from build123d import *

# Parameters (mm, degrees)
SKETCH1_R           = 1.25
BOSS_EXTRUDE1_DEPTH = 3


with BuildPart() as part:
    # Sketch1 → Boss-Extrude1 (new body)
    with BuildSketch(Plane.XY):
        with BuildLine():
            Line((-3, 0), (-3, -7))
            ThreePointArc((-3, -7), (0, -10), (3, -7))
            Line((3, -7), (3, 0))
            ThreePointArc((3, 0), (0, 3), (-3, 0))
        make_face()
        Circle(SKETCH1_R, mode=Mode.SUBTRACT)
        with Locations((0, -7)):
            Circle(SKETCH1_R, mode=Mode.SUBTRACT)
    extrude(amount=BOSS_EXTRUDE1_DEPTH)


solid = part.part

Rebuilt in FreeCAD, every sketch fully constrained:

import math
import FreeCAD as App
import Part
import Sketcher

doc = App.newDocument("Part")
body = doc.addObject("PartDesign::Body", "Body")

# Sketch on XY plane
sketch1 = doc.addObject("Sketcher::SketchObject", "Sketch")
body.addObject(sketch1)
sketch1.AttachmentSupport = (doc.XY_Plane, [""])
sketch1.MapMode = "FlatFace"
sketch1.addGeometry(Part.LineSegment(App.Vector(-3, 0, 0), App.Vector(-3, -7, 0)), False)
sketch1.addGeometry(Part.ArcOfCircle(Part.Circle(App.Vector(0, -7, 0), App.Vector(0, 0, 1), 3), math.radians(180), math.radians(360)), False)
sketch1.addGeometry(Part.LineSegment(App.Vector(3, -7, 0), App.Vector(3, 0, 0)), False)
sketch1.addGeometry(Part.ArcOfCircle(Part.Circle(App.Vector(0, 0, 0), App.Vector(0, 0, 1), 3), math.radians(0), math.radians(180)), False)
sketch1.addGeometry(Part.Circle(App.Vector(0, -7, 0), App.Vector(0, 0, 1), 1.2), False)
sketch1.addGeometry(Part.Circle(App.Vector(0, 0, 0), App.Vector(0, 0, 1), 1.2), False)
sketch1.addConstraint(Sketcher.Constraint("Tangent", 0, 2, 1, 1))
sketch1.addConstraint(Sketcher.Constraint("Tangent", 1, 2, 2, 1))
sketch1.addConstraint(Sketcher.Constraint("Tangent", 2, 2, 3, 1))
sketch1.addConstraint(Sketcher.Constraint("Tangent", 3, 2, 0, 1))
sketch1.addConstraint(Sketcher.Constraint("Vertical", 0))
sketch1.addConstraint(Sketcher.Constraint("Vertical", 2))
sketch1.addConstraint(Sketcher.Constraint("Coincident", 3, 3, -1, 1))
sketch1.addConstraint(Sketcher.Constraint("Coincident", 5, 3, -1, 1))
sketch1.addConstraint(Sketcher.Constraint("Coincident", 4, 3, 1, 3))
sketch1.addConstraint(Sketcher.Constraint("Equal", 4, 5))
sketch1.addConstraint(Sketcher.Constraint("Radius", 1, 3.0))
sketch1.addConstraint(Sketcher.Constraint("Diameter", 4, 2.5))
sketch1.addConstraint(Sketcher.Constraint("DistanceY", 0, 2, 0, 1, 7.0))
pad1 = doc.addObject("PartDesign::Pad", "Pad")
body.addObject(pad1)
pad1.Profile = sketch1
pad1.Length = 3

doc.recompute()
